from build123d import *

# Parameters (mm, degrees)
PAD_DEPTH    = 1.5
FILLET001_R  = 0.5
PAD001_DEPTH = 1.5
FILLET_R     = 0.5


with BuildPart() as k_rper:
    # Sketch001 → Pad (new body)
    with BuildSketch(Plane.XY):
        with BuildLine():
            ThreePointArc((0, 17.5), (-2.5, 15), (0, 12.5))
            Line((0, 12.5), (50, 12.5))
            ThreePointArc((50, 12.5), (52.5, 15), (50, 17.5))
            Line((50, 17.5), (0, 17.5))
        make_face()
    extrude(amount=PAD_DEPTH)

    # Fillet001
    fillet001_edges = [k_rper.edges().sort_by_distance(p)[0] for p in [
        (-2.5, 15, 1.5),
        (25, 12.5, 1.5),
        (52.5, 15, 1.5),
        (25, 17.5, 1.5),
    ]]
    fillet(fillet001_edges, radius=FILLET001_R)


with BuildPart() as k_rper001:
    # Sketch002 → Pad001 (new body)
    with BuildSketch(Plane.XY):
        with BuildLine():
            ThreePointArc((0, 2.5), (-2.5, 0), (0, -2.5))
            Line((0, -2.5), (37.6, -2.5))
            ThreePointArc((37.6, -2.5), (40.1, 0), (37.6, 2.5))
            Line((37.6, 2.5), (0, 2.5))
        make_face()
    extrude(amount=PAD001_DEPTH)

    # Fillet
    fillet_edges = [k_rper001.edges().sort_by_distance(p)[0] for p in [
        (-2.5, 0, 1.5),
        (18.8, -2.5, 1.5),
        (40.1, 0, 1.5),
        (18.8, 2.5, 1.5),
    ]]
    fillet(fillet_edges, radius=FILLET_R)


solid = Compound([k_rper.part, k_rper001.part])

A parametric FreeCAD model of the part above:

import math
import FreeCAD as App
import Part
import Sketcher
from FreeCAD import Vector


def edges_at(feature, points):
    """Names of the edges that pass closest to the given points."""
    edges = feature.Shape.Edges
    near = lambda p: min(range(len(edges)), key=lambda i: edges[i].distToShape(Part.Vertex(*p))[0])
    return sorted({f"Edge{near(p) + 1}" for p in points})

doc = App.newDocument("Part")
body = doc.addObject("PartDesign::Body", "Body")

# Sketch on XY plane
sketch1 = body.newObject("Sketcher::SketchObject", "Sketch")
sketch1.AttachmentSupport = (doc.getObject("XY_Plane"), [""])
sketch1.MapMode = "FlatFace"
sketch1.addGeometry([
    Part.ArcOfCircle(Part.Circle(Vector(0, 15, 0), Vector(0, 0, 1), 2.5), math.radians(90), math.radians(270)),
    Part.LineSegment(Vector(0, 12.5, 0), Vector(50, 12.5, 0)),
    Part.ArcOfCircle(Part.Circle(Vector(50, 15, 0), Vector(0, 0, 1), 2.5), math.radians(-90), math.radians(90)),
    Part.LineSegment(Vector(50, 17.5, 0), Vector(0, 17.5, 0)),
], False)
sketch1.addConstraint([
    Sketcher.Constraint("Tangent", 0, 2, 1, 1),
    Sketcher.Constraint("Tangent", 1, 2, 2, 1),
    Sketcher.Constraint("Tangent", 2, 2, 3, 1),
    Sketcher.Constraint("Tangent", 3, 2, 0, 1),
    Sketcher.Constraint("Horizontal", 1),
    Sketcher.Constraint("Horizontal", 3),
    Sketcher.Constraint("PointOnObject", 0, 3, -2),
    Sketcher.Constraint("Radius", 0, 2.5),
    Sketcher.Constraint("DistanceX", 1, 1, 1, 2, 50.0),
    Sketcher.Constraint("DistanceY", -1, 1, 0, 3, 15.0),
])
pad1 = body.newObject("PartDesign::Pad", "Pad")
pad1.Profile = sketch1
pad1.Length = 1.5
doc.recompute()

fillet = body.newObject("PartDesign::Fillet", "Fillet")
fillet.Base = (pad1, edges_at(pad1, [
    (-2.5, 15, 1.5),
    (25, 12.5, 1.5),
    (52.5, 15, 1.5),
    (25, 17.5, 1.5),
]))
fillet.Radius = 0.5
body2 = doc.addObject("PartDesign::Body", "Body001")

# Sketch on XY plane
sketch2 = body2.newObject("Sketcher::SketchObject", "Sketch001")
sketch2.AttachmentSupport = (doc.getObject("XY_Plane001"), [""])
sketch2.MapMode = "FlatFace"
sketch2.addGeometry([
    Part.ArcOfCircle(Part.Circle(Vector(0, 0, 0), Vector(0, 0, 1), 2.5), math.radians(90), math.radians(270)),
    Part.LineSegment(Vector(0, -2.5, 0), Vector(37.6, -2.5, 0)),
    Part.ArcOfCircle(Part.Circle(Vector(37.6, 0, 0), Vector(0, 0, 1), 2.5), math.radians(-90), math.radians(90)),
    Part.LineSegment(Vector(37.6, 2.5, 0), Vector(0, 2.5, 0)),
], False)
sketch2.addConstraint([
    Sketcher.Constraint("Tangent", 0, 2, 1, 1),
    Sketcher.Constraint("Tangent", 1, 2, 2, 1),
    Sketcher.Constraint("Tangent", 2, 2, 3, 1),
    Sketcher.Constraint("Tangent", 3, 2, 0, 1),
    Sketcher.Constraint("Horizontal", 1),
    Sketcher.Constraint("Horizontal", 3),
    Sketcher.Constraint("Coincident", 0, 3, -1, 1),
    Sketcher.Constraint("Radius", 0, 2.5),
    Sketcher.Constraint("DistanceX", 1, 1, 1, 2, 37.6),
])
pad2 = body2.newObject("PartDesign::Pad", "Pad001")
pad2.Profile = sketch2
pad2.Length = 1.5
doc.recompute()

fillet2 = body2.newObject("PartDesign::Fillet", "Fillet001")
fillet2.Base = (pad2, edges_at(pad2, [
    (-2.5, 0, 1.5),
    (18.8, -2.5, 1.5),
    (40.1, 0, 1.5),
    (18.8, 2.5, 1.5),
]))
fillet2.Radius = 0.5

doc.recompute()
